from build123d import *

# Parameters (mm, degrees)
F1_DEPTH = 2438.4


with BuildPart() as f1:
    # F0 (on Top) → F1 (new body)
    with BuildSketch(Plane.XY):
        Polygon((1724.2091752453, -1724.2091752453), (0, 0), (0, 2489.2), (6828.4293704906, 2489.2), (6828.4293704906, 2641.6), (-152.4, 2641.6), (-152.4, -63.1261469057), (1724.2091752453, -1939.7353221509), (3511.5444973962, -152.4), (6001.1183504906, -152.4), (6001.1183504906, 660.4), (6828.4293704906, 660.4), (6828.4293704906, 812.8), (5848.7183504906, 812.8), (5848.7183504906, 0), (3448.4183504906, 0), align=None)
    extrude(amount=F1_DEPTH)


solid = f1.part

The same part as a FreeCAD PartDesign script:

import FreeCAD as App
import Part
import Sketcher
from FreeCAD import Vector
Q = App.Units.Quantity


def add_polygon(sketch, points):
    """Adds a closed chain of lines whose ends are joined by coincident constraints."""
    first, n = sketch.GeometryCount, len(points)
    for a, b in zip(points, points[1:] + points[:1]):
        sketch.addGeometry(Part.LineSegment(App.Vector(*a, 0), App.Vector(*b, 0)), False)
    for i in range(n):
        sketch.addConstraint(Sketcher.Constraint("Coincident", first + i, 2, first + (i + 1) % n, 1))

doc = App.newDocument("Part")
body = doc.addObject("PartDesign::Body", "Body")

# Sketch on XY plane
sketch1 = doc.addObject("Sketcher::SketchObject", "Sketch")
body.addObject(sketch1)
sketch1.AttachmentSupport = (doc.XY_Plane, [""])
sketch1.MapMode = "FlatFace"
add_polygon(sketch1, [(1724, -1724), (0, 0), (0, 2489), (6828, 2489), (6828, 2642), (-152, 2642), (-152, -63), (1724, -1940), (3512, -152), (6001, -152), (6001, 660), (6828, 660), (6828, 813), (5849, 813), (5849, 0), (3448, 0)])  # lines 0-15
sketch1.addConstraint([
    Sketcher.Constraint("Vertical", 1),
    Sketcher.Constraint("Horizontal", 2),
    Sketcher.Constraint("Vertical", 3),
    Sketcher.Constraint("Horizontal", 4),
    Sketcher.Constraint("Vertical", 5),
    Sketcher.Constraint("Horizontal", 8),
    Sketcher.Constraint("Vertical", 9),
    Sketcher.Constraint("Horizontal", 10),
    Sketcher.Constraint("Vertical", 11),
    Sketcher.Constraint("Horizontal", 12),
    Sketcher.Constraint("Vertical", 13),
    Sketcher.Constraint("Horizontal", 14),
    Sketcher.Constraint("Coincident", 0, 2, -1, 1),
    Sketcher.Constraint("PointOnObject", 13, 2, -1),
    Sketcher.Constraint("Parallel", 0, 6),
    Sketcher.Constraint("Perpendicular", 6, 7),
    Sketcher.Constraint("Parallel", 7, 15),
    Sketcher.Constraint("Vertical", 3, 2, 10, 2),
    Sketcher.Constraint("Vertical", 6, 2, 15, 2),
    Sketcher.Constraint("Equal", 3, 11),
    Sketcher.Constraint("Equal", 9, 13),
    Sketcher.Constraint("Equal", 0, 15),
    Sketcher.Constraint("DistanceY", 1, 1, 1, 2, Q("98 in")),
    Sketcher.Constraint("DistanceY", 3, 1, 3, 2, Q("6 in")),
    Sketcher.Constraint("DistanceY", 9, 1, 9, 2, Q("32 in")),
    Sketcher.Constraint("Distance", 0, Q("96 in")),
    Sketcher.Constraint("DistanceX", 14, 2, 14, 1, Q("94.5 in")),
    Sketcher.Constraint("DistanceX", 4, 2, -1, 1, Q("6 in")),
    Sketcher.Constraint("DistanceX", 12, 2, 9, 2, Q("6 in")),
    Sketcher.Constraint("DistanceX", 10, 1, 10, 2, Q("32.5713 in")),
    Sketcher.Constraint("DistanceX", 8, 1, 8, 2, 2489.573853),
])
pad1 = doc.addObject("PartDesign::Pad", "Pad")
body.addObject(pad1)
pad1.Profile = sketch1
pad1.Length = Q("96 in")

doc.recompute()
